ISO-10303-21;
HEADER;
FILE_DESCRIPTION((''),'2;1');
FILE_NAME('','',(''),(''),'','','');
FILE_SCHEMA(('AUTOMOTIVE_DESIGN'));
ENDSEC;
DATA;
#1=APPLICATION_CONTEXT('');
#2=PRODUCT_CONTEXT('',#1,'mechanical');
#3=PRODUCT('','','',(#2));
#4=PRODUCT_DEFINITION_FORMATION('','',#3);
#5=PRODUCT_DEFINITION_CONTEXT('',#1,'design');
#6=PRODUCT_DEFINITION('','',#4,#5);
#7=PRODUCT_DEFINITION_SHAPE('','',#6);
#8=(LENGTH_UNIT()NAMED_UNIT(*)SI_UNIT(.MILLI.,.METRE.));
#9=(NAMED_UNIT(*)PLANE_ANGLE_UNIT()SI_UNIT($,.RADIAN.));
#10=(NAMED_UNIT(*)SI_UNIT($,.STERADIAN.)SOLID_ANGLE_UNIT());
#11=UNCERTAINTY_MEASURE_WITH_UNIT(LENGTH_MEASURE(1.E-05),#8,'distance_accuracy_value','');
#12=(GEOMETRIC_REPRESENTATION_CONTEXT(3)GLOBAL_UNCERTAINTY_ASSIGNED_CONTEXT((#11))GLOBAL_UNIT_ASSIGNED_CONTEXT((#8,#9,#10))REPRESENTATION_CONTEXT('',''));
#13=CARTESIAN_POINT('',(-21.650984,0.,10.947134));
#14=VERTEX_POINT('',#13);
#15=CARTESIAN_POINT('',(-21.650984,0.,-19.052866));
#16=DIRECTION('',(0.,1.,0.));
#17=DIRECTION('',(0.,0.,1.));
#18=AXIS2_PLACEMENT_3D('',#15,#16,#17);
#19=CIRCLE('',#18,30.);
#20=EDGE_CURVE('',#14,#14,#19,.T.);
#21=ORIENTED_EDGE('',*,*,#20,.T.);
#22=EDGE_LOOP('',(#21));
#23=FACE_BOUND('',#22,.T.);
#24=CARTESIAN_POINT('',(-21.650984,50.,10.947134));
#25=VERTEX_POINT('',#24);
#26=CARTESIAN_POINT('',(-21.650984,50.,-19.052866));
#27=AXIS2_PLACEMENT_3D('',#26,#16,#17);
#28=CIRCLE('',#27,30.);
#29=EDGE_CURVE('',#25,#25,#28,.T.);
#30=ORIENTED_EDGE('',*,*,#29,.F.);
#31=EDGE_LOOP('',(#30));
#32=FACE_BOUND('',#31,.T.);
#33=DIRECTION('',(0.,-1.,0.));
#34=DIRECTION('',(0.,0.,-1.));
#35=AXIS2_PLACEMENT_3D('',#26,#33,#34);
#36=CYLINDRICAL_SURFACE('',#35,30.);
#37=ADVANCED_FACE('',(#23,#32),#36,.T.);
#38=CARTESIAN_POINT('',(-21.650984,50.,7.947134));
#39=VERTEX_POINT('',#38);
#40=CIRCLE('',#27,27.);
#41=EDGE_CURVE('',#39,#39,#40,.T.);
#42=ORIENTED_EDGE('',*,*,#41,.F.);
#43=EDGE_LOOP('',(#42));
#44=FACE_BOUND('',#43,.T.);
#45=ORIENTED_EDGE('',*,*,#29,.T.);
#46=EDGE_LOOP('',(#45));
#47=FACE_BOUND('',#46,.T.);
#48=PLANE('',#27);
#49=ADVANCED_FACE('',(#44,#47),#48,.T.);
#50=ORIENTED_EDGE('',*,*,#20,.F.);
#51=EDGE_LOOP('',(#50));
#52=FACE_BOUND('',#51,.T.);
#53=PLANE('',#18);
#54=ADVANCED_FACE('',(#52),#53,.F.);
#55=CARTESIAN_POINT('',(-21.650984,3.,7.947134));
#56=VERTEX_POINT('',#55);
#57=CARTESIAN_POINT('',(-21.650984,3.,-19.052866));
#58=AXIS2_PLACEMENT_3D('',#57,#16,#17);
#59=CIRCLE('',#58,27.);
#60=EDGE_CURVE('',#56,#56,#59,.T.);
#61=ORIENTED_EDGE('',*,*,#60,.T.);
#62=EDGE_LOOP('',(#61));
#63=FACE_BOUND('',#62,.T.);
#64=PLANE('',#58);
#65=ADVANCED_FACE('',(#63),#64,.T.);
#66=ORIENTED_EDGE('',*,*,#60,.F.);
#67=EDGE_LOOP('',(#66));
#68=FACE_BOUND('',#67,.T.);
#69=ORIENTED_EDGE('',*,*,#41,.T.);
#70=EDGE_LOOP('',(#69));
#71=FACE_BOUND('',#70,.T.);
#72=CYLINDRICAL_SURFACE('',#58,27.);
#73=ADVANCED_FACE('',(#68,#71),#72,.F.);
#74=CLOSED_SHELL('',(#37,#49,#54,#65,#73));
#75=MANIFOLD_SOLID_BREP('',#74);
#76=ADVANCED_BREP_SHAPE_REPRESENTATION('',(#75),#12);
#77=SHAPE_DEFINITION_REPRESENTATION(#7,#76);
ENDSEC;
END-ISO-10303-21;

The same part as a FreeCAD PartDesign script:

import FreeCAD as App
import Part
import Sketcher
from FreeCAD import Vector
Q = App.Units.Quantity

doc = App.newDocument("Part")
body = doc.addObject("PartDesign::Body", "Body")

# Sketch on XZ plane
sketch1 = doc.addObject("Sketcher::SketchObject", "Sketch")
body.addObject(sketch1)
sketch1.AttachmentSupport = (doc.XZ_Plane, [""])
sketch1.MapMode = "FlatFace"
sketch1.addGeometry(Part.Circle(Vector(-22, -19, 0), Vector(0, 0, 1), 30), False)
sketch1.addConstraint([
    Sketcher.Constraint("Diameter", 0, Q("60 mm")),
    Sketcher.Constraint("DistanceX", 0, 3, -1, 1, Q("21.650984 mm")),
    Sketcher.Constraint("DistanceY", 0, 3, -1, 1, Q("19.052866 mm")),
])
pad1 = doc.addObject("PartDesign::Pad", "Pad")
body.addObject(pad1)
pad1.Profile = sketch1
pad1.Length = 50
pad1.Reversed = True

# Sketch on XZ plane
sketch2 = doc.addObject("Sketcher::SketchObject", "Sketch001")
body.addObject(sketch2)
sketch2.AttachmentSupport = (doc.XZ_Plane, [""])
sketch2.MapMode = "FlatFace"
sketch2.AttachmentOffset = App.Placement(Vector(0, 0, -50), App.Rotation())
sketch2.addGeometry(Part.Circle(Vector(-22, -19, 0), Vector(0, 0, 1), 27), False)
sketch2.addConstraint([
    Sketcher.Constraint("Diameter", 0, Q("54 mm")),
    Sketcher.Constraint("DistanceX", 0, 3, -1, 1, Q("21.650984 mm")),
    Sketcher.Constraint("DistanceY", 0, 3, -1, 1, Q("19.052866 mm")),
])
pocket1 = doc.addObject("PartDesign::Pocket", "Pocket")
body.addObject(pocket1)
pocket1.Profile = sketch2
pocket1.Length = 47
pocket1.Reversed = True

doc.recompute()
